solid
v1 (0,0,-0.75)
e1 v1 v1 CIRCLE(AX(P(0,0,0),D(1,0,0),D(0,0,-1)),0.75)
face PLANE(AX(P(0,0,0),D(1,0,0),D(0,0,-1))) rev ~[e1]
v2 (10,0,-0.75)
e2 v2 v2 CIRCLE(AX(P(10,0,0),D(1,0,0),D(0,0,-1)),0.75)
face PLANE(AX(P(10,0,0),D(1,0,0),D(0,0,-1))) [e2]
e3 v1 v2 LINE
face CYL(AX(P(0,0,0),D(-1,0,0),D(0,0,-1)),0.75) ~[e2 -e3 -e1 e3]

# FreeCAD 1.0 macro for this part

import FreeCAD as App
import Part
import Sketcher

doc = App.newDocument("Part")
params = doc.addObject("Spreadsheet::Sheet", "Params")
for row, (alias, value) in enumerate([
    ("sketch1_diameter", "1.5 mm"),
    ("pad1_length", "10 mm"),
], start=1):
    params.set(f"A{row}", alias)
    params.set(f"B{row}", "=" + value)
    params.setAlias(f"B{row}", alias)

body = doc.addObject("PartDesign::Body", "Body")

sketch1 = body.newObject("Sketcher::SketchObject", "Sketch")
sketch1.AttachmentSupport = (doc.getObject("YZ_Plane"), [""])
sketch1.MapMode = "FlatFace"
sketch1.addGeometry(Part.Circle(App.Vector(0, 0, 0), App.Vector(0, 0, 1), 0.75), False)
sketch1.addConstraint(Sketcher.Constraint("Coincident", 0, 3, -1, 1))
sketch1.addConstraint(Sketcher.Constraint("Diameter", 0, 1.5))
sketch1.setExpression("Constraints[1]", "Params.sketch1_diameter")
pad1 = body.newObject("PartDesign::Pad", "Pad")
pad1.Profile = sketch1
pad1.setExpression("Length", "Params.pad1_length")

doc.recompute()
